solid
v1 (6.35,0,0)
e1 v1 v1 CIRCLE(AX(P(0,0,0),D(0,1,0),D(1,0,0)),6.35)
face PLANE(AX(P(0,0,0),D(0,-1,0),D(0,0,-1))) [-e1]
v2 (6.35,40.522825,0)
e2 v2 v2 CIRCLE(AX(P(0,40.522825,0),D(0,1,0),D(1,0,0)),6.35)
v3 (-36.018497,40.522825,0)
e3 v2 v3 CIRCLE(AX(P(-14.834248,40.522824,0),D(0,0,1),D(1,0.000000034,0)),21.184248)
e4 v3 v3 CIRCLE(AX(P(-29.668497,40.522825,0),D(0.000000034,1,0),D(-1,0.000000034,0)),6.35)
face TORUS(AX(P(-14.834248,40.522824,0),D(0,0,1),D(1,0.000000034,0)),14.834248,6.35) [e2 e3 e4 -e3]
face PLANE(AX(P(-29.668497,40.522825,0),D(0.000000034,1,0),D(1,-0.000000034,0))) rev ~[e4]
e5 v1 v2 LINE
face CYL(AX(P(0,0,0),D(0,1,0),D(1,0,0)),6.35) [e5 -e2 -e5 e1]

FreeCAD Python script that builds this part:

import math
import FreeCAD as App
import Part
import Sketcher

V = App.Vector
Q = App.Units.Quantity

doc = App.newDocument("Part")
body = doc.addObject("PartDesign::Body", "Body")

sketch1 = body.newObject("Sketcher::SketchObject", "Sketch")
sketch1.AttachmentSupport = (doc.getObject("XZ_Plane"), [""])
sketch1.MapMode = "FlatFace"
sketch1.addGeometry(Part.Circle(V(0, 0, 0), V(0, 0, 1), 6), False)
sketch1.addConstraint([
    Sketcher.Constraint("Coincident", 0, 3, -1, 1),
    Sketcher.Constraint("Diameter", 0, Q("0.5 in")),
])

sketch2 = body.newObject("Sketcher::SketchObject", "Sketch001")
sketch2.AttachmentSupport = (doc.getObject("XY_Plane"), [""])
sketch2.MapMode = "FlatFace"
sketch2.addGeometry([
    Part.LineSegment(V(0, 0, 0), V(0, 41, 0)),
    Part.ArcOfCircle(Part.Circle(V(-15, 41, 0), V(0, 0, 1), 15), math.radians(0), math.radians(180)),
], False)
sketch2.addConstraint([
    Sketcher.Constraint("Tangent", 0, 2, 1, 1),
    Sketcher.Constraint("Vertical", 0),
    Sketcher.Constraint("Coincident", 0, 1, -1, 1),
    Sketcher.Constraint("Horizontal", 0, 2, 1, 2),
    Sketcher.Constraint("Radius", 1, 14.834248),
    Sketcher.Constraint("DistanceY", 0, 1, 0, 2, 40.522825),
])
doc.recompute()

additivepipe = body.newObject("PartDesign::AdditivePipe", "AdditivePipe")
additivepipe.Profile = sketch1
additivepipe.Spine = (sketch2, ["Edge1", "Edge2"])

doc.recompute()
